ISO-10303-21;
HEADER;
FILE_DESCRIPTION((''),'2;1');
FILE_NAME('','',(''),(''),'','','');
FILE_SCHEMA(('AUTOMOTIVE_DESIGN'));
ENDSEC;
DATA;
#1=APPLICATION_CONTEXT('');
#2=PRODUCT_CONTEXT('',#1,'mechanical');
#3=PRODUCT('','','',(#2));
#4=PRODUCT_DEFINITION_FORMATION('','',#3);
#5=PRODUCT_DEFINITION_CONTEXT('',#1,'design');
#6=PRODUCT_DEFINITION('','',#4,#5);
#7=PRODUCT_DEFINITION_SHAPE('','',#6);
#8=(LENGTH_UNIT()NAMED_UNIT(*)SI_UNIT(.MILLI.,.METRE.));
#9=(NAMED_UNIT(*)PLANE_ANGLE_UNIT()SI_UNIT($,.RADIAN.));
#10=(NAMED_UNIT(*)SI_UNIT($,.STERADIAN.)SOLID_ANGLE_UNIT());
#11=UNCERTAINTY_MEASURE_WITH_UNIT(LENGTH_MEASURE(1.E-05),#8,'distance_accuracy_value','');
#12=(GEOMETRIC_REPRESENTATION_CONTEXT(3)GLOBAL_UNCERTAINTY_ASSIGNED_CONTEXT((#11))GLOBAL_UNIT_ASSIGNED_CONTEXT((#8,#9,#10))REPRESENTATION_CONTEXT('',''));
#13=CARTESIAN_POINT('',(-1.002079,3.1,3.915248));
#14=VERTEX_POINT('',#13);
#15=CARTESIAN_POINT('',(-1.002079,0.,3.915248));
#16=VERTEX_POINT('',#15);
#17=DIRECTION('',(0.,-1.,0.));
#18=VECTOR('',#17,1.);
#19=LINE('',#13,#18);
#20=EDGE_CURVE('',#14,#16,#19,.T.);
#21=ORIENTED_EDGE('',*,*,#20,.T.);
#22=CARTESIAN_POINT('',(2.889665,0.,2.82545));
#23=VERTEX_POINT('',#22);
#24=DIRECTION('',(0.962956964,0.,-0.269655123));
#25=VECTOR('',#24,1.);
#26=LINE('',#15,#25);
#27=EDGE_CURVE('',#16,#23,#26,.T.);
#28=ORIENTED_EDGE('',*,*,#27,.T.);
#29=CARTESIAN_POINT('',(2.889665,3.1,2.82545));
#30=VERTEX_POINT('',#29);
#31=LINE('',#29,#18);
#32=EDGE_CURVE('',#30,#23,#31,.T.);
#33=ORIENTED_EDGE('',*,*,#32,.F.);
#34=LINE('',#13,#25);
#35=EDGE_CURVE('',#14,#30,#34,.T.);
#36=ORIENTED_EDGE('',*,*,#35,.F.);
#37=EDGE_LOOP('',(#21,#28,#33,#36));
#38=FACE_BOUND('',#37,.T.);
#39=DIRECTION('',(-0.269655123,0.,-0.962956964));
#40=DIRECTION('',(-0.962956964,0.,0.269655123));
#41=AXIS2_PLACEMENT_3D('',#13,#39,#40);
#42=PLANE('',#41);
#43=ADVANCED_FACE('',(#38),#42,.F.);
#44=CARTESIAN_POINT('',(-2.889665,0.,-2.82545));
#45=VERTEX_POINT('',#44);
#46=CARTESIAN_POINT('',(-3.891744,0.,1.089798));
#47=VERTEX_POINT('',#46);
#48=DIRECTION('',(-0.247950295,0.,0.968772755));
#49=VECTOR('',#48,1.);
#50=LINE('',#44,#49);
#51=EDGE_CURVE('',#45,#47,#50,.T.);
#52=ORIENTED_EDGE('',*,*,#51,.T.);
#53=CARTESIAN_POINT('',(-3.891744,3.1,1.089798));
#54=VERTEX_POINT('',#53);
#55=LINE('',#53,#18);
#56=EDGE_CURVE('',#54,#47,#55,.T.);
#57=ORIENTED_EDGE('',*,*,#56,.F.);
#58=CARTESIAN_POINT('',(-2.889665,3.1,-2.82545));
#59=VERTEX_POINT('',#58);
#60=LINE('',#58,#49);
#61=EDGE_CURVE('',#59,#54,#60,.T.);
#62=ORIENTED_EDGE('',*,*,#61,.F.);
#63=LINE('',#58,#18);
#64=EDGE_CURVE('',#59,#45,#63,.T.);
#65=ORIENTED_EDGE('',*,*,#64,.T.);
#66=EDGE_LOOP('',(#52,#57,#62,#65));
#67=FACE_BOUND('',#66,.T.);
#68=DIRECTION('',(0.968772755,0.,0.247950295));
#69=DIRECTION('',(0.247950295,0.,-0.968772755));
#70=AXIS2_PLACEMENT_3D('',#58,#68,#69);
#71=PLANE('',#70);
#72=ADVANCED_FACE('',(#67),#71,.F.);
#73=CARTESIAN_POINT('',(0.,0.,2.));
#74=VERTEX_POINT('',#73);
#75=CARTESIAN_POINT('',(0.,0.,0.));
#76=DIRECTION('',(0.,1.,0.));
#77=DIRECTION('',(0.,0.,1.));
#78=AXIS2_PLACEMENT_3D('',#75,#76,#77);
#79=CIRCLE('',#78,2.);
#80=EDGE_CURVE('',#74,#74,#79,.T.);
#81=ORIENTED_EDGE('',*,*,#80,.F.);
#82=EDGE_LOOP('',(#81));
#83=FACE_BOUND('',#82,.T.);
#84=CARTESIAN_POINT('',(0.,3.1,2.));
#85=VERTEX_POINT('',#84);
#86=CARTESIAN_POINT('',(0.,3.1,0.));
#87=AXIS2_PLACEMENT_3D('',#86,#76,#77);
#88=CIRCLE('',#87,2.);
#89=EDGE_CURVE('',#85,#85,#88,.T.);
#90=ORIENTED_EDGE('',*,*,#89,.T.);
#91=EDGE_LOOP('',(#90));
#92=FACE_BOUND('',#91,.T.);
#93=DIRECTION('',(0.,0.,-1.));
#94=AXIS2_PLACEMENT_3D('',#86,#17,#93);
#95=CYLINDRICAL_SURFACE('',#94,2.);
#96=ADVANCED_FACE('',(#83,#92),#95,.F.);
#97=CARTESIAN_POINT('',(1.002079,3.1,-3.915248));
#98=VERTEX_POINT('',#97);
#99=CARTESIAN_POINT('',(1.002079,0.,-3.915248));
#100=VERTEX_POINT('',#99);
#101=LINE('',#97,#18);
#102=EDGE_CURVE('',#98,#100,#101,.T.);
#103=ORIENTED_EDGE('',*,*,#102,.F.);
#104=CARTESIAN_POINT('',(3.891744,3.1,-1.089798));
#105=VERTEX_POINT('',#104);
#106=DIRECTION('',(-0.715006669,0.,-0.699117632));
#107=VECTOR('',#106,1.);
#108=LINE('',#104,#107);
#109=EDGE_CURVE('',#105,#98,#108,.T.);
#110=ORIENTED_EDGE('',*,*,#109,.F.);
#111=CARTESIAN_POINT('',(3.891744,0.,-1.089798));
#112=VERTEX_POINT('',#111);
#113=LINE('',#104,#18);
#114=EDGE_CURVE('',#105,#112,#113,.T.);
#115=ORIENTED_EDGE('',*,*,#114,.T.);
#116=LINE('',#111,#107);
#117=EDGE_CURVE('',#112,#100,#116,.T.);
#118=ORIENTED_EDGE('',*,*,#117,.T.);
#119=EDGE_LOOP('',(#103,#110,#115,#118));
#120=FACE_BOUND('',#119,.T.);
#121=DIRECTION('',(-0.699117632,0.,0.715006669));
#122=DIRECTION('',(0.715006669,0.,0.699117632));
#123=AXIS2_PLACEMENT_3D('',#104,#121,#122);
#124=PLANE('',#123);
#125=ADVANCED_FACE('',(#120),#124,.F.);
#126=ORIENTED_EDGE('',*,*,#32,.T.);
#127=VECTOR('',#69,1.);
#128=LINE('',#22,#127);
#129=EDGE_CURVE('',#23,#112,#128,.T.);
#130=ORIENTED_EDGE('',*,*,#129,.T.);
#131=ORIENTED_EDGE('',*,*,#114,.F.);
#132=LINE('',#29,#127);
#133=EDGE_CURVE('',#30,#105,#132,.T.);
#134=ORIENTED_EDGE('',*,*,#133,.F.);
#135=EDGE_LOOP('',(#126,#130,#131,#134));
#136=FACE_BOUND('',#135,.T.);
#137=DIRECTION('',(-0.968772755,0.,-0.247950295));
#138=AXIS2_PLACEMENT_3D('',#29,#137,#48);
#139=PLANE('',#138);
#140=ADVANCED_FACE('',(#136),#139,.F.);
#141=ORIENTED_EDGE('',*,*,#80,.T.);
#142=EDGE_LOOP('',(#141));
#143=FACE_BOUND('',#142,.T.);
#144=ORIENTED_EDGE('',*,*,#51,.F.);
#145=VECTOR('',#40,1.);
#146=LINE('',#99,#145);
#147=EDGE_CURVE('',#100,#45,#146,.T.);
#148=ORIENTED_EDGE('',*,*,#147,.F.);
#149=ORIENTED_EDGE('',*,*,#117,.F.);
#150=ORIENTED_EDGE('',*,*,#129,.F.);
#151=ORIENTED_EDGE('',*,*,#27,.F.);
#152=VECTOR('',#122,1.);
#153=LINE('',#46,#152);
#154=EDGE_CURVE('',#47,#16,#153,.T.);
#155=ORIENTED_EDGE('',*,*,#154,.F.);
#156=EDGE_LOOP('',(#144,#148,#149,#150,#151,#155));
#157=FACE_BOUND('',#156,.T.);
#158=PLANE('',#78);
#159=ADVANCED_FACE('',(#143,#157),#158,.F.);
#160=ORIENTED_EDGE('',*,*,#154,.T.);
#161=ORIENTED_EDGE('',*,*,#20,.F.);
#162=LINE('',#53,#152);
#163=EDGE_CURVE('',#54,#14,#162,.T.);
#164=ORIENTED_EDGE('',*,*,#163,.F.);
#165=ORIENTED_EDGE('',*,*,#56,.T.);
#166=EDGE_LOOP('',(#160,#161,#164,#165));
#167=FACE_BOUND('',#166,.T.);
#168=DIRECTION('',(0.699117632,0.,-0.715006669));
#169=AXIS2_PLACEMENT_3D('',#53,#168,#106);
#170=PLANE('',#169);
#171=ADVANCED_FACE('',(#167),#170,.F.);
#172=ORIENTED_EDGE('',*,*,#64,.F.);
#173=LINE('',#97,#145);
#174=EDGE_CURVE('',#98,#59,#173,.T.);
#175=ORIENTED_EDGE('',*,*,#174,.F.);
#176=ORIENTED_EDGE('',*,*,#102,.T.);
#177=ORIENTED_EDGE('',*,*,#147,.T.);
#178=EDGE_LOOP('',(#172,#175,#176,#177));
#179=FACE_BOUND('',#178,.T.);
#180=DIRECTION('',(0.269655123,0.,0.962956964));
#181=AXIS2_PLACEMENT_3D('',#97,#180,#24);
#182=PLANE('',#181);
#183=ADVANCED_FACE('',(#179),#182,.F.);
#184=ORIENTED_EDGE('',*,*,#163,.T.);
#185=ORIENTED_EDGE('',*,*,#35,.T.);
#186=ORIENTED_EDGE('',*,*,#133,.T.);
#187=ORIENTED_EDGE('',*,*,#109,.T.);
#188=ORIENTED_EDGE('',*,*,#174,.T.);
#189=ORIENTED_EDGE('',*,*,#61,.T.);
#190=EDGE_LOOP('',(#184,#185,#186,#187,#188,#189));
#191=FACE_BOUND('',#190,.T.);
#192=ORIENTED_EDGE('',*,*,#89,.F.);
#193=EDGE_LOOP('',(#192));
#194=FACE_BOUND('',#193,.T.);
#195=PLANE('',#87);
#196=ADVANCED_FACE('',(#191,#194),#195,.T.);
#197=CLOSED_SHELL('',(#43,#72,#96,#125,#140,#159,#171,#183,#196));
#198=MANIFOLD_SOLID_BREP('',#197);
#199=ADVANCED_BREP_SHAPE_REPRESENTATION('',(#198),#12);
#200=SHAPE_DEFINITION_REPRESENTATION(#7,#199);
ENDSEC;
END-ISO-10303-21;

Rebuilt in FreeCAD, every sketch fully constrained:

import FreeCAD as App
import Part
import Sketcher

V = App.Vector
Q = App.Units.Quantity


def add_polygon(sketch, points):
    """Adds a closed chain of lines whose ends are joined by coincident constraints."""
    first, n = sketch.GeometryCount, len(points)
    for a, b in zip(points, points[1:] + points[:1]):
        sketch.addGeometry(Part.LineSegment(App.Vector(*a, 0), App.Vector(*b, 0)), False)
    for i in range(n):
        sketch.addConstraint(Sketcher.Constraint("Coincident", first + i, 2, first + (i + 1) % n, 1))

doc = App.newDocument("Part")
body = doc.addObject("PartDesign::Body", "Body")

# Sketch on XZ plane
sketch1 = doc.addObject("Sketcher::SketchObject", "Sketch")
body.addObject(sketch1)
sketch1.AttachmentSupport = (doc.XZ_Plane, [""])
sketch1.MapMode = "FlatFace"
add_polygon(sketch1, [(2.9, 2.8), (3.9, -1.1), (1, -3.9), (-2.9, -2.8), (-3.9, 1.1), (-1, 3.9)])  # lines 0-5
sketch1.addGeometry(Part.Circle(V(0, 0, 0), V(0, 0, 1), 2), False)  # 6
sketch1.addConstraint([
    Sketcher.Constraint("Coincident", 6, 3, -1, 1),
    Sketcher.Constraint("Symmetric", 0, 2, 3, 2, -1, 1),
    Sketcher.Constraint("Symmetric", 1, 2, 4, 2, -1, 1),
    Sketcher.Constraint("Symmetric", 2, 2, 5, 2, -1, 1),
    Sketcher.Constraint("Equal", 0, 1),
    Sketcher.Constraint("Equal", 1, 2),
    Sketcher.Constraint("Diameter", 6, Q("4 mm")),
    Sketcher.Constraint("DistanceY", 0, 2, -1, 1, Q("1.089798 mm")),
    Sketcher.Constraint("DistanceY", 1, 2, 2, 2, Q("1.089798 mm")),
    Sketcher.Constraint("DistanceY", 2, 2, 4, 2, Q("6.740699 mm")),
    Sketcher.Constraint("Distance", 0, Q("4.041452 mm")),
])
pad1 = doc.addObject("PartDesign::Pad", "Pad")
body.addObject(pad1)
pad1.Profile = sketch1
pad1.Length = 3.1
pad1.Reversed = True

doc.recompute()
